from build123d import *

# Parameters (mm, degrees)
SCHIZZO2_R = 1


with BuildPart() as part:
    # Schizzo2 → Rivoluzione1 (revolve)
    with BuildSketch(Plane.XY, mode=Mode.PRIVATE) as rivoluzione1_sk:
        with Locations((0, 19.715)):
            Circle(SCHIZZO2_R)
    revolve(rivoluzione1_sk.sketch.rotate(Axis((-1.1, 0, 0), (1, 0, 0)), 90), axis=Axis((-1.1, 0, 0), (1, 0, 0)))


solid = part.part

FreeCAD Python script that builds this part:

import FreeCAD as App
import Part
import Sketcher

V = App.Vector

doc = App.newDocument("Part")
body = doc.addObject("PartDesign::Body", "Body")

# Sketch on XY plane
sketch1 = body.newObject("Sketcher::SketchObject", "Sketch")
sketch1.AttachmentSupport = (doc.getObject("XY_Plane"), [""])
sketch1.MapMode = "FlatFace"
sketch1.addGeometry(Part.Circle(V(0, 19.7, 0), V(0, 0, 1), 1), False)
sketch1.addConstraint([
    Sketcher.Constraint("PointOnObject", 0, 3, -2),
    Sketcher.Constraint("Diameter", 0, 2.0),
    Sketcher.Constraint("DistanceY", -1, 1, 0, 3, 19.715),
])
revolution = body.newObject("PartDesign::Revolution", "Revolution")
revolution.Profile = sketch1
revolution.ReferenceAxis = (sketch1, ["H_Axis"])
revolution.Angle = 360

doc.recompute()
